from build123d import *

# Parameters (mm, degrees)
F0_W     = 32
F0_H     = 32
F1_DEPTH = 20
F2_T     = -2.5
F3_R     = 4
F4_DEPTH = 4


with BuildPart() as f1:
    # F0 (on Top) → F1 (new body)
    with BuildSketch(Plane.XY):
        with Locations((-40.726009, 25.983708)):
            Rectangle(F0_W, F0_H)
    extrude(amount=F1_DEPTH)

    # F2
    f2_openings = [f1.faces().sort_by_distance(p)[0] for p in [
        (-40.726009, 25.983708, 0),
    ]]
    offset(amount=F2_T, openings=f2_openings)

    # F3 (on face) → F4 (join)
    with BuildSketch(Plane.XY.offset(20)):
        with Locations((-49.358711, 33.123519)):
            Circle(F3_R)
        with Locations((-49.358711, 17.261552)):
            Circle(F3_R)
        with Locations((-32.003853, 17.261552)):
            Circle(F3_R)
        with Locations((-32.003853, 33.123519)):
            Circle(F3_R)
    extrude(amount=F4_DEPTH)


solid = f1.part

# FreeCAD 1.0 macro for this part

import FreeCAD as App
import Part
import Sketcher

V = App.Vector


def faces_at(feature, points):
    """Names of the faces that lie closest to the given points."""
    faces = feature.Shape.Faces
    near = lambda p: min(range(len(faces)), key=lambda i: faces[i].distToShape(Part.Vertex(*p))[0])
    return sorted({f"Face{near(p) + 1}" for p in points})


def add_polygon(sketch, points):
    """Adds a closed chain of lines whose ends are joined by coincident constraints."""
    first, n = sketch.GeometryCount, len(points)
    for a, b in zip(points, points[1:] + points[:1]):
        sketch.addGeometry(Part.LineSegment(App.Vector(*a, 0), App.Vector(*b, 0)), False)
    for i in range(n):
        sketch.addConstraint(Sketcher.Constraint("Coincident", first + i, 2, first + (i + 1) % n, 1))

doc = App.newDocument("Part")
body = doc.addObject("PartDesign::Body", "Body")

# Sketch on XY plane
sketch1 = doc.addObject("Sketcher::SketchObject", "Sketch")
body.addObject(sketch1)
sketch1.AttachmentSupport = (doc.XY_Plane, [""])
sketch1.MapMode = "FlatFace"
add_polygon(sketch1, [(-57, 42), (-57, 10), (-25, 10), (-25, 42)])  # lines 0-3
sketch1.addConstraint(Sketcher.Constraint("Vertical", 0))
sketch1.addConstraint(Sketcher.Constraint("Horizontal", 1))
sketch1.addConstraint(Sketcher.Constraint("Vertical", 2))
sketch1.addConstraint(Sketcher.Constraint("Horizontal", 3))
sketch1.addConstraint(Sketcher.Constraint("Equal", 3, 0))
sketch1.addConstraint(Sketcher.Constraint("DistanceX", 1, 1, 1, 2, 32.0))
sketch1.addConstraint(Sketcher.Constraint("DistanceX", 0, 2, -1, 1, 56.726009))
sketch1.addConstraint(Sketcher.Constraint("DistanceY", -1, 1, 0, 2, 9.983708))
pad1 = doc.addObject("PartDesign::Pad", "Pad")
body.addObject(pad1)
pad1.Profile = sketch1
pad1.Length = 20
doc.recompute()

thickness = doc.addObject("PartDesign::Thickness", "Thickness")
body.addObject(thickness)
thickness.Base = (pad1, faces_at(pad1, [(-40.726, 25.984, 0)]))
thickness.Value = 2.5
thickness.Reversed = True
thickness.Join = "Arc"

# Sketch on XY plane
sketch2 = doc.addObject("Sketcher::SketchObject", "Sketch001")
body.addObject(sketch2)
sketch2.AttachmentSupport = (doc.XY_Plane, [""])
sketch2.MapMode = "FlatFace"
sketch2.AttachmentOffset = App.Placement(V(0, 0, 20), App.Rotation())
sketch2.addGeometry(Part.Circle(V(-49.4, 33.1, 0), V(0, 0, 1), 4), False)
sketch2.addGeometry(Part.Circle(V(-49.4, 17.3, 0), V(0, 0, 1), 4), False)
sketch2.addGeometry(Part.Circle(V(-32, 17.3, 0), V(0, 0, 1), 4), False)
sketch2.addGeometry(Part.Circle(V(-32, 33.1, 0), V(0, 0, 1), 4), False)
sketch2.addConstraint(Sketcher.Constraint("Equal", 0, 1))
sketch2.addConstraint(Sketcher.Constraint("Equal", 1, 2))
sketch2.addConstraint(Sketcher.Constraint("Equal", 2, 3))
sketch2.addConstraint(Sketcher.Constraint("Horizontal", 1, 3, 2, 3))
sketch2.addConstraint(Sketcher.Constraint("Horizontal", 0, 3, 3, 3))
sketch2.addConstraint(Sketcher.Constraint("Vertical", 0, 3, 1, 3))
sketch2.addConstraint(Sketcher.Constraint("Vertical", 2, 3, 3, 3))
sketch2.addConstraint(Sketcher.Constraint("Diameter", 0, 8.0))
sketch2.addConstraint(Sketcher.Constraint("DistanceX", 0, 3, -1, 1, 49.358711))
sketch2.addConstraint(Sketcher.Constraint("DistanceY", -1, 1, 0, 3, 33.123519))
sketch2.addConstraint(Sketcher.Constraint("DistanceY", -1, 1, 1, 3, 17.261552))
sketch2.addConstraint(Sketcher.Constraint("DistanceX", 1, 3, 2, 3, 17.354858))
pad2 = doc.addObject("PartDesign::Pad", "Pad001")
body.addObject(pad2)
pad2.Profile = sketch2
pad2.Length = 4

doc.recompute()
